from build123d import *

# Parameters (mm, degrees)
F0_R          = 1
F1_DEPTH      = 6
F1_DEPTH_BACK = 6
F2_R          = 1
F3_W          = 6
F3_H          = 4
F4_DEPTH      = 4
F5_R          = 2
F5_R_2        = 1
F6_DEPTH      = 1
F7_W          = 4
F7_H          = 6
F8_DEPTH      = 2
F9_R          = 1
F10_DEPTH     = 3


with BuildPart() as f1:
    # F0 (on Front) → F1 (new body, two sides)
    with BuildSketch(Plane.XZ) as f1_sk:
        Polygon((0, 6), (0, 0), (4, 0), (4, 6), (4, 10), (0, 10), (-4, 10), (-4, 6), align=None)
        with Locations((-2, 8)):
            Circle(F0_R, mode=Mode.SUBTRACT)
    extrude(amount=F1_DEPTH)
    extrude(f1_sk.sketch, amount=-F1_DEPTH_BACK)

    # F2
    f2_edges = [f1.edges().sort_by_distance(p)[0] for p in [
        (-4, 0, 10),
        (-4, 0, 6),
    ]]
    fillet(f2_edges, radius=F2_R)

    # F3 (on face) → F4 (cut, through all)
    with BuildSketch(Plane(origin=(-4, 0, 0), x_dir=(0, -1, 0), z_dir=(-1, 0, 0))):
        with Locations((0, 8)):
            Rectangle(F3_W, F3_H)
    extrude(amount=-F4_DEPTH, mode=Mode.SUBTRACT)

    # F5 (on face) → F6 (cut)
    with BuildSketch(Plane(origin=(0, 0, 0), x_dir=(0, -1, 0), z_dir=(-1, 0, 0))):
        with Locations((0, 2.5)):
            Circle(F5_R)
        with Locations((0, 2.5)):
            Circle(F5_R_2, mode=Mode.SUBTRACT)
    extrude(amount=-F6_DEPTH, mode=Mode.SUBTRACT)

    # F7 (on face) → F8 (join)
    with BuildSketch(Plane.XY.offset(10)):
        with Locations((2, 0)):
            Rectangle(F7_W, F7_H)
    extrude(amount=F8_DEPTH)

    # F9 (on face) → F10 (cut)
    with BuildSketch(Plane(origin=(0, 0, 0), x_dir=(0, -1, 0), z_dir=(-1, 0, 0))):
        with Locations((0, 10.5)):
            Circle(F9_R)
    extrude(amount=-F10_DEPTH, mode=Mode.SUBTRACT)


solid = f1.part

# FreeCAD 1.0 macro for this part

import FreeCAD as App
import Part
import Sketcher


def edges_at(feature, points):
    """Names of the edges that pass closest to the given points."""
    edges = feature.Shape.Edges
    near = lambda p: min(range(len(edges)), key=lambda i: edges[i].distToShape(Part.Vertex(*p))[0])
    return sorted({f"Edge{near(p) + 1}" for p in points})


def add_polygon(sketch, points):
    """Adds a closed chain of lines whose ends are joined by coincident constraints."""
    first, n = sketch.GeometryCount, len(points)
    for a, b in zip(points, points[1:] + points[:1]):
        sketch.addGeometry(Part.LineSegment(App.Vector(*a, 0), App.Vector(*b, 0)), False)
    for i in range(n):
        sketch.addConstraint(Sketcher.Constraint("Coincident", first + i, 2, first + (i + 1) % n, 1))

doc = App.newDocument("Part")
body = doc.addObject("PartDesign::Body", "Body")

# Sketch on XZ plane
sketch1 = body.newObject("Sketcher::SketchObject", "Sketch")
sketch1.AttachmentSupport = (doc.getObject("XZ_Plane"), [""])
sketch1.MapMode = "FlatFace"
add_polygon(sketch1, [(0, 6), (0, 0), (4, 0), (4, 10), (-4, 10), (-4, 6)])  # lines 0-5
sketch1.addGeometry(Part.Circle(App.Vector(-2, 8, 0), App.Vector(0, 0, 1), 1), False)  # 6
sketch1.addConstraint([
    Sketcher.Constraint("Vertical", 0),
    Sketcher.Constraint("Horizontal", 1),
    Sketcher.Constraint("Vertical", 2),
    Sketcher.Constraint("Horizontal", 3),
    Sketcher.Constraint("Vertical", 4),
    Sketcher.Constraint("Horizontal", 5),
    Sketcher.Constraint("Coincident", 0, 2, -1, 1),
    Sketcher.Constraint("Equal", 1, 5),
    Sketcher.Constraint("Equal", 5, 4),
    Sketcher.Constraint("Diameter", 6, 2.0),
    Sketcher.Constraint("DistanceX", 1, 1, 1, 2, 4.0),
    Sketcher.Constraint("DistanceY", 0, 2, 0, 1, 6.0),
    Sketcher.Constraint("DistanceX", 6, 3, -1, 1, 2.0),
    Sketcher.Constraint("DistanceY", -1, 1, 6, 3, 8.0),
])
pad1 = body.newObject("PartDesign::Pad", "Pad")
pad1.Profile = sketch1
pad1.Type = "TwoLengths"
pad1.Length = 6
pad1.Length2 = 6
doc.recompute()

fillet = body.newObject("PartDesign::Fillet", "Fillet")
fillet.Base = (pad1, edges_at(pad1, [(-4, 0, 10), (-4, 0, 6)]))
fillet.Radius = 1

# Sketch on YZ plane
sketch2 = body.newObject("Sketcher::SketchObject", "Sketch001")
sketch2.AttachmentSupport = (doc.getObject("YZ_Plane"), [""])
sketch2.MapMode = "FlatFace"
sketch2.AttachmentOffset = App.Placement(App.Vector(0, 0, -4), App.Rotation())
add_polygon(sketch2, [(3, 10), (3, 6), (-3, 6), (-3, 10)])  # lines 0-3
sketch2.addConstraint([
    Sketcher.Constraint("Vertical", 0),
    Sketcher.Constraint("Horizontal", 1),
    Sketcher.Constraint("Vertical", 2),
    Sketcher.Constraint("Horizontal", 3),
    Sketcher.Constraint("DistanceX", 1, 2, 1, 1, 6.0),
    Sketcher.Constraint("DistanceY", 0, 2, 0, 1, 4.0),
    Sketcher.Constraint("DistanceX", -1, 1, 0, 2, 3.0),
    Sketcher.Constraint("DistanceY", -1, 1, 0, 2, 6.0),
])
pocket1 = body.newObject("PartDesign::Pocket", "Pocket")
pocket1.Profile = sketch2
pocket1.Length = 4
pocket1.Reversed = True

# Sketch on YZ plane
sketch3 = body.newObject("Sketcher::SketchObject", "Sketch002")
sketch3.AttachmentSupport = (doc.getObject("YZ_Plane"), [""])
sketch3.MapMode = "FlatFace"
sketch3.addGeometry([
    Part.Circle(App.Vector(0, 2.5, 0), App.Vector(0, 0, 1), 2),
    Part.Circle(App.Vector(0, 2.5, 0), App.Vector(0, 0, 1), 1),
], False)
sketch3.addConstraint([
    Sketcher.Constraint("Coincident", 1, 3, 0, 3),
    Sketcher.Constraint("PointOnObject", 0, 3, -2),
    Sketcher.Constraint("Diameter", 0, 4.0),
    Sketcher.Constraint("Diameter", 1, 2.0),
    Sketcher.Constraint("DistanceY", -1, 1, 0, 3, 2.5),
])
pocket2 = body.newObject("PartDesign::Pocket", "Pocket001")
pocket2.Profile = sketch3
pocket2.Length = 1
pocket2.Reversed = True

# Sketch on XY plane
sketch4 = body.newObject("Sketcher::SketchObject", "Sketch003")
sketch4.AttachmentSupport = (doc.getObject("XY_Plane"), [""])
sketch4.MapMode = "FlatFace"
sketch4.AttachmentOffset = App.Placement(App.Vector(0, 0, 10), App.Rotation())
add_polygon(sketch4, [(0, 3), (0, -3), (4, -3), (4, 3)])  # lines 0-3
sketch4.addConstraint([
    Sketcher.Constraint("Vertical", 0),
    Sketcher.Constraint("Horizontal", 1),
    Sketcher.Constraint("Vertical", 2),
    Sketcher.Constraint("Horizontal", 3),
    Sketcher.Constraint("Symmetric", 0, 2, 3, 2, -1, 1),
    Sketcher.Constraint("DistanceX", 1, 1, 1, 2, 4.0),
    Sketcher.Constraint("DistanceY", 0, 2, 0, 1, 6.0),
])
pad2 = body.newObject("PartDesign::Pad", "Pad001")
pad2.Profile = sketch4
pad2.Length = 2

# Sketch on YZ plane
sketch5 = body.newObject("Sketcher::SketchObject", "Sketch004")
sketch5.AttachmentSupport = (doc.getObject("YZ_Plane"), [""])
sketch5.MapMode = "FlatFace"
sketch5.addGeometry(Part.Circle(App.Vector(0, 10.5, 0), App.Vector(0, 0, 1), 1), False)
sketch5.addConstraint([
    Sketcher.Constraint("PointOnObject", 0, 3, -2),
    Sketcher.Constraint("Diameter", 0, 2.0),
    Sketcher.Constraint("DistanceY", -1, 1, 0, 3, 10.5),
])
pocket3 = body.newObject("PartDesign::Pocket", "Pocket002")
pocket3.Profile = sketch5
pocket3.Length = 3
pocket3.Reversed = True

doc.recompute()
